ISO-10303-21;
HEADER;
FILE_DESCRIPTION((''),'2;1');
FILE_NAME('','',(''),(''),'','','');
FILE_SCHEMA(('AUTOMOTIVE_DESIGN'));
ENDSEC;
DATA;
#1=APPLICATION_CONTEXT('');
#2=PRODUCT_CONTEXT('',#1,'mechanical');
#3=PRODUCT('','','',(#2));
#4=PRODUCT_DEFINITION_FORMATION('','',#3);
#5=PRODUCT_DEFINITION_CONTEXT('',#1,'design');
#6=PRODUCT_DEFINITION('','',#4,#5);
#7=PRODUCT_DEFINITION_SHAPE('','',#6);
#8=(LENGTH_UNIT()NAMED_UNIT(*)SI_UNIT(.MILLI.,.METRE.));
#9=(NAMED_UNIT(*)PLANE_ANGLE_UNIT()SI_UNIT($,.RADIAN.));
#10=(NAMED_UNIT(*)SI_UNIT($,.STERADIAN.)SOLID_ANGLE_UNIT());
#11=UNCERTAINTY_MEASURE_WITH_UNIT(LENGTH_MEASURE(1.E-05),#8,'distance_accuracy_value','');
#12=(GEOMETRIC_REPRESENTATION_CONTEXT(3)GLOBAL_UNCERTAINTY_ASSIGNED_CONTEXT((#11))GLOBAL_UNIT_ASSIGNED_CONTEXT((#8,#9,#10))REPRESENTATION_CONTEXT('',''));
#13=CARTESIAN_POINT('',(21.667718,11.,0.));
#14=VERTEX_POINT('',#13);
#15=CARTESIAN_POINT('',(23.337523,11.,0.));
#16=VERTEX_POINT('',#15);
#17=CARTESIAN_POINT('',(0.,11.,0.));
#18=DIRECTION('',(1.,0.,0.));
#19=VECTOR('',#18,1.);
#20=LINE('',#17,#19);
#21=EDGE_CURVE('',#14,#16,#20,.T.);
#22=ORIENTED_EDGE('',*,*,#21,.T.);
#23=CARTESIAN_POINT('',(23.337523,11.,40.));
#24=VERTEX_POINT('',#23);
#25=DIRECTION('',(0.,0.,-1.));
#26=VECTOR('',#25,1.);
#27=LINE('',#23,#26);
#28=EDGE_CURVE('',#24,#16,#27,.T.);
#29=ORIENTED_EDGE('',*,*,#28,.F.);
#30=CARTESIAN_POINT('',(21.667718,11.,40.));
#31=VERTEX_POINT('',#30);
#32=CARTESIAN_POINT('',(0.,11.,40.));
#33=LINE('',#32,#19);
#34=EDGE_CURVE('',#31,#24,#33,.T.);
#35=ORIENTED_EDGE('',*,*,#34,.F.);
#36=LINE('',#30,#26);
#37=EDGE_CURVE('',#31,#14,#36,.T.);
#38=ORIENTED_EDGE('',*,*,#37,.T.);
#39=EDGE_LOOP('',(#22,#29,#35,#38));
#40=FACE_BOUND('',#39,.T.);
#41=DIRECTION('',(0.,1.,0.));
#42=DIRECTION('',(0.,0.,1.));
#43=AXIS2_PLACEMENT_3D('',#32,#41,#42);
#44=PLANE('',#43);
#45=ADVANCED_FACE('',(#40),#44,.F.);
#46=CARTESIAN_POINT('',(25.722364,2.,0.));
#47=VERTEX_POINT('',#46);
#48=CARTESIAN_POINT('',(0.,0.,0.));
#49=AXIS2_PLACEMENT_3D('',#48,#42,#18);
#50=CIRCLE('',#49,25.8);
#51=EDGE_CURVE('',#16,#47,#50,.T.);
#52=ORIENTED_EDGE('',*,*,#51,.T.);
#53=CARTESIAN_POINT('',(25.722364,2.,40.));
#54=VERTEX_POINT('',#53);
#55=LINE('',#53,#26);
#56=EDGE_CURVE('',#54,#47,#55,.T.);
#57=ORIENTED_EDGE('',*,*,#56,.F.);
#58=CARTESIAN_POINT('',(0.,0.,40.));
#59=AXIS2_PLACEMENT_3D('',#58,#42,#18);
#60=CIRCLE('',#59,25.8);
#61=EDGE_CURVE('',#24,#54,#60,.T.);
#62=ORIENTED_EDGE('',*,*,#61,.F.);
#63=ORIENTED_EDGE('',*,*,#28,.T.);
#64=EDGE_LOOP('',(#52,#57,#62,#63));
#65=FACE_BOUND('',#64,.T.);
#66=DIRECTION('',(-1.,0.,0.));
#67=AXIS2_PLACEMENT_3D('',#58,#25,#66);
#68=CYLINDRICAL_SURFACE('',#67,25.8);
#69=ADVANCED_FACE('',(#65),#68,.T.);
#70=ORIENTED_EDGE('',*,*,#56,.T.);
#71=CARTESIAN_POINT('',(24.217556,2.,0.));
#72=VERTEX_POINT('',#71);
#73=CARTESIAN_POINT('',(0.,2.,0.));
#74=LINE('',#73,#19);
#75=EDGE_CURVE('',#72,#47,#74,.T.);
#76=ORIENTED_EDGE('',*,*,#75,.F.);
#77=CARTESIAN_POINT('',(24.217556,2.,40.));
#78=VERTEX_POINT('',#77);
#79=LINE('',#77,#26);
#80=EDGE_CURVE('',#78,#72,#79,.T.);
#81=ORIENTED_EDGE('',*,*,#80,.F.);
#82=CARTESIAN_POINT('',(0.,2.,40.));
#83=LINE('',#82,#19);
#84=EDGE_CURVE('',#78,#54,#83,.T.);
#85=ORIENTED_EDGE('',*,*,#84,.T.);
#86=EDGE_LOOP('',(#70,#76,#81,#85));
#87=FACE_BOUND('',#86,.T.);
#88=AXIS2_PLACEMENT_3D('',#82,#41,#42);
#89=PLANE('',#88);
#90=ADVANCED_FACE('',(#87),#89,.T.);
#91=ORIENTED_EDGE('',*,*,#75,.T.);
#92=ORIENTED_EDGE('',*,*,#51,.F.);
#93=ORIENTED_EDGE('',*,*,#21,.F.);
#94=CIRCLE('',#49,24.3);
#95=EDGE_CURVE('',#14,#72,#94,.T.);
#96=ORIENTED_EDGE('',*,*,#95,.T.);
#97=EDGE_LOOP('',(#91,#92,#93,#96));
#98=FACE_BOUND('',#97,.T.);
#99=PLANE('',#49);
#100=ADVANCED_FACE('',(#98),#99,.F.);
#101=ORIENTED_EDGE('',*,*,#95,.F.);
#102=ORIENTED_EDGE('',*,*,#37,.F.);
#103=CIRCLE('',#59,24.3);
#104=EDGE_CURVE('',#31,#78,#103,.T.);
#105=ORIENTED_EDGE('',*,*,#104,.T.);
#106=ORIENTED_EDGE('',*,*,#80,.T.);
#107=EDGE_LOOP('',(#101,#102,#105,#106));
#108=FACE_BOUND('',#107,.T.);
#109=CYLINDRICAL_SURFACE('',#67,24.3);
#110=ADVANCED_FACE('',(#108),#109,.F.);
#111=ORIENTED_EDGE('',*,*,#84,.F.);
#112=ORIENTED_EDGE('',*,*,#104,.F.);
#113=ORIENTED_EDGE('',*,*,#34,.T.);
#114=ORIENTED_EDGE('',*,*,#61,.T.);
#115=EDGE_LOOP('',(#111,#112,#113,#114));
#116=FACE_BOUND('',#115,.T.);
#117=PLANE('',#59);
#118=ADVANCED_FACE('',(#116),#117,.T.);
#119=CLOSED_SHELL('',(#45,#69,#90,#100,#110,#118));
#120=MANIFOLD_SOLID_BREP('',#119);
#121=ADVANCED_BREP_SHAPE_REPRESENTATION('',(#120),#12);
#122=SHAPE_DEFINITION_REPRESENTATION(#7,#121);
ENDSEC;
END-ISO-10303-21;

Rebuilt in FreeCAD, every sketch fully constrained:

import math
import FreeCAD as App
import Part
import Sketcher

doc = App.newDocument("Part")
body = doc.addObject("PartDesign::Body", "Body")

sketch1 = doc.addObject("Sketcher::SketchObject", "Sketch")
body.addObject(sketch1)
sketch1.AttachmentSupport = (doc.XY_Plane, [""])
sketch1.MapMode = "FlatFace"
sketch1.addGeometry([
    Part.ArcOfCircle(Part.Circle(App.Vector(0, 0, 0), App.Vector(0, 0, 1), 24.3), math.radians(27), math.radians(90)),
    Part.LineSegment(App.Vector(21.7, 11, 0), App.Vector(23.3, 11, 0)),
    Part.ArcOfCircle(Part.Circle(App.Vector(0, 0, 0), App.Vector(0, 0, 1), 25.8), math.radians(25), math.radians(90)),
    Part.ArcOfCircle(Part.Circle(App.Vector(0, 0, 0), App.Vector(0, 0, 1), 25.8), math.radians(90), math.radians(364)),
    Part.LineSegment(App.Vector(25.7, 2, 0), App.Vector(24.2, 2, 0)),
    Part.ArcOfCircle(Part.Circle(App.Vector(0, 0, 0), App.Vector(0, 0, 1), 24.3), math.radians(90), math.radians(365)),
], False)
sketch1.addConstraint([
    Sketcher.Constraint("Coincident", 0, 1, 1, 1),
    Sketcher.Constraint("Coincident", 1, 2, 2, 1),
    Sketcher.Constraint("Tangent", 2, 2, 3, 1),
    Sketcher.Constraint("Coincident", 3, 2, 4, 1),
    Sketcher.Constraint("Coincident", 4, 2, 5, 2),
    Sketcher.Constraint("Tangent", 5, 1, 0, 2),
    Sketcher.Constraint("Horizontal", 1),
    Sketcher.Constraint("Horizontal", 4),
    Sketcher.Constraint("Coincident", 0, 3, -1, 1),
    Sketcher.Constraint("Coincident", 2, 3, -1, 1),
    Sketcher.Constraint("Equal", 2, 3),
    Sketcher.Constraint("Equal", 0, 5),
    Sketcher.Constraint("PointOnObject", 2, 2, -2),
    Sketcher.Constraint("PointOnObject", 5, 1, -2),
    Sketcher.Constraint("Radius", 0, 24.3),
    Sketcher.Constraint("Radius", 2, 25.8),
    Sketcher.Constraint("DistanceY", -1, 1, 0, 1, 11.0),
    Sketcher.Constraint("DistanceY", -1, 1, 3, 2, 2.0),
])
pad1 = doc.addObject("PartDesign::Pad", "Pad")
body.addObject(pad1)
pad1.Profile = sketch1
pad1.Length = 40

doc.recompute()
